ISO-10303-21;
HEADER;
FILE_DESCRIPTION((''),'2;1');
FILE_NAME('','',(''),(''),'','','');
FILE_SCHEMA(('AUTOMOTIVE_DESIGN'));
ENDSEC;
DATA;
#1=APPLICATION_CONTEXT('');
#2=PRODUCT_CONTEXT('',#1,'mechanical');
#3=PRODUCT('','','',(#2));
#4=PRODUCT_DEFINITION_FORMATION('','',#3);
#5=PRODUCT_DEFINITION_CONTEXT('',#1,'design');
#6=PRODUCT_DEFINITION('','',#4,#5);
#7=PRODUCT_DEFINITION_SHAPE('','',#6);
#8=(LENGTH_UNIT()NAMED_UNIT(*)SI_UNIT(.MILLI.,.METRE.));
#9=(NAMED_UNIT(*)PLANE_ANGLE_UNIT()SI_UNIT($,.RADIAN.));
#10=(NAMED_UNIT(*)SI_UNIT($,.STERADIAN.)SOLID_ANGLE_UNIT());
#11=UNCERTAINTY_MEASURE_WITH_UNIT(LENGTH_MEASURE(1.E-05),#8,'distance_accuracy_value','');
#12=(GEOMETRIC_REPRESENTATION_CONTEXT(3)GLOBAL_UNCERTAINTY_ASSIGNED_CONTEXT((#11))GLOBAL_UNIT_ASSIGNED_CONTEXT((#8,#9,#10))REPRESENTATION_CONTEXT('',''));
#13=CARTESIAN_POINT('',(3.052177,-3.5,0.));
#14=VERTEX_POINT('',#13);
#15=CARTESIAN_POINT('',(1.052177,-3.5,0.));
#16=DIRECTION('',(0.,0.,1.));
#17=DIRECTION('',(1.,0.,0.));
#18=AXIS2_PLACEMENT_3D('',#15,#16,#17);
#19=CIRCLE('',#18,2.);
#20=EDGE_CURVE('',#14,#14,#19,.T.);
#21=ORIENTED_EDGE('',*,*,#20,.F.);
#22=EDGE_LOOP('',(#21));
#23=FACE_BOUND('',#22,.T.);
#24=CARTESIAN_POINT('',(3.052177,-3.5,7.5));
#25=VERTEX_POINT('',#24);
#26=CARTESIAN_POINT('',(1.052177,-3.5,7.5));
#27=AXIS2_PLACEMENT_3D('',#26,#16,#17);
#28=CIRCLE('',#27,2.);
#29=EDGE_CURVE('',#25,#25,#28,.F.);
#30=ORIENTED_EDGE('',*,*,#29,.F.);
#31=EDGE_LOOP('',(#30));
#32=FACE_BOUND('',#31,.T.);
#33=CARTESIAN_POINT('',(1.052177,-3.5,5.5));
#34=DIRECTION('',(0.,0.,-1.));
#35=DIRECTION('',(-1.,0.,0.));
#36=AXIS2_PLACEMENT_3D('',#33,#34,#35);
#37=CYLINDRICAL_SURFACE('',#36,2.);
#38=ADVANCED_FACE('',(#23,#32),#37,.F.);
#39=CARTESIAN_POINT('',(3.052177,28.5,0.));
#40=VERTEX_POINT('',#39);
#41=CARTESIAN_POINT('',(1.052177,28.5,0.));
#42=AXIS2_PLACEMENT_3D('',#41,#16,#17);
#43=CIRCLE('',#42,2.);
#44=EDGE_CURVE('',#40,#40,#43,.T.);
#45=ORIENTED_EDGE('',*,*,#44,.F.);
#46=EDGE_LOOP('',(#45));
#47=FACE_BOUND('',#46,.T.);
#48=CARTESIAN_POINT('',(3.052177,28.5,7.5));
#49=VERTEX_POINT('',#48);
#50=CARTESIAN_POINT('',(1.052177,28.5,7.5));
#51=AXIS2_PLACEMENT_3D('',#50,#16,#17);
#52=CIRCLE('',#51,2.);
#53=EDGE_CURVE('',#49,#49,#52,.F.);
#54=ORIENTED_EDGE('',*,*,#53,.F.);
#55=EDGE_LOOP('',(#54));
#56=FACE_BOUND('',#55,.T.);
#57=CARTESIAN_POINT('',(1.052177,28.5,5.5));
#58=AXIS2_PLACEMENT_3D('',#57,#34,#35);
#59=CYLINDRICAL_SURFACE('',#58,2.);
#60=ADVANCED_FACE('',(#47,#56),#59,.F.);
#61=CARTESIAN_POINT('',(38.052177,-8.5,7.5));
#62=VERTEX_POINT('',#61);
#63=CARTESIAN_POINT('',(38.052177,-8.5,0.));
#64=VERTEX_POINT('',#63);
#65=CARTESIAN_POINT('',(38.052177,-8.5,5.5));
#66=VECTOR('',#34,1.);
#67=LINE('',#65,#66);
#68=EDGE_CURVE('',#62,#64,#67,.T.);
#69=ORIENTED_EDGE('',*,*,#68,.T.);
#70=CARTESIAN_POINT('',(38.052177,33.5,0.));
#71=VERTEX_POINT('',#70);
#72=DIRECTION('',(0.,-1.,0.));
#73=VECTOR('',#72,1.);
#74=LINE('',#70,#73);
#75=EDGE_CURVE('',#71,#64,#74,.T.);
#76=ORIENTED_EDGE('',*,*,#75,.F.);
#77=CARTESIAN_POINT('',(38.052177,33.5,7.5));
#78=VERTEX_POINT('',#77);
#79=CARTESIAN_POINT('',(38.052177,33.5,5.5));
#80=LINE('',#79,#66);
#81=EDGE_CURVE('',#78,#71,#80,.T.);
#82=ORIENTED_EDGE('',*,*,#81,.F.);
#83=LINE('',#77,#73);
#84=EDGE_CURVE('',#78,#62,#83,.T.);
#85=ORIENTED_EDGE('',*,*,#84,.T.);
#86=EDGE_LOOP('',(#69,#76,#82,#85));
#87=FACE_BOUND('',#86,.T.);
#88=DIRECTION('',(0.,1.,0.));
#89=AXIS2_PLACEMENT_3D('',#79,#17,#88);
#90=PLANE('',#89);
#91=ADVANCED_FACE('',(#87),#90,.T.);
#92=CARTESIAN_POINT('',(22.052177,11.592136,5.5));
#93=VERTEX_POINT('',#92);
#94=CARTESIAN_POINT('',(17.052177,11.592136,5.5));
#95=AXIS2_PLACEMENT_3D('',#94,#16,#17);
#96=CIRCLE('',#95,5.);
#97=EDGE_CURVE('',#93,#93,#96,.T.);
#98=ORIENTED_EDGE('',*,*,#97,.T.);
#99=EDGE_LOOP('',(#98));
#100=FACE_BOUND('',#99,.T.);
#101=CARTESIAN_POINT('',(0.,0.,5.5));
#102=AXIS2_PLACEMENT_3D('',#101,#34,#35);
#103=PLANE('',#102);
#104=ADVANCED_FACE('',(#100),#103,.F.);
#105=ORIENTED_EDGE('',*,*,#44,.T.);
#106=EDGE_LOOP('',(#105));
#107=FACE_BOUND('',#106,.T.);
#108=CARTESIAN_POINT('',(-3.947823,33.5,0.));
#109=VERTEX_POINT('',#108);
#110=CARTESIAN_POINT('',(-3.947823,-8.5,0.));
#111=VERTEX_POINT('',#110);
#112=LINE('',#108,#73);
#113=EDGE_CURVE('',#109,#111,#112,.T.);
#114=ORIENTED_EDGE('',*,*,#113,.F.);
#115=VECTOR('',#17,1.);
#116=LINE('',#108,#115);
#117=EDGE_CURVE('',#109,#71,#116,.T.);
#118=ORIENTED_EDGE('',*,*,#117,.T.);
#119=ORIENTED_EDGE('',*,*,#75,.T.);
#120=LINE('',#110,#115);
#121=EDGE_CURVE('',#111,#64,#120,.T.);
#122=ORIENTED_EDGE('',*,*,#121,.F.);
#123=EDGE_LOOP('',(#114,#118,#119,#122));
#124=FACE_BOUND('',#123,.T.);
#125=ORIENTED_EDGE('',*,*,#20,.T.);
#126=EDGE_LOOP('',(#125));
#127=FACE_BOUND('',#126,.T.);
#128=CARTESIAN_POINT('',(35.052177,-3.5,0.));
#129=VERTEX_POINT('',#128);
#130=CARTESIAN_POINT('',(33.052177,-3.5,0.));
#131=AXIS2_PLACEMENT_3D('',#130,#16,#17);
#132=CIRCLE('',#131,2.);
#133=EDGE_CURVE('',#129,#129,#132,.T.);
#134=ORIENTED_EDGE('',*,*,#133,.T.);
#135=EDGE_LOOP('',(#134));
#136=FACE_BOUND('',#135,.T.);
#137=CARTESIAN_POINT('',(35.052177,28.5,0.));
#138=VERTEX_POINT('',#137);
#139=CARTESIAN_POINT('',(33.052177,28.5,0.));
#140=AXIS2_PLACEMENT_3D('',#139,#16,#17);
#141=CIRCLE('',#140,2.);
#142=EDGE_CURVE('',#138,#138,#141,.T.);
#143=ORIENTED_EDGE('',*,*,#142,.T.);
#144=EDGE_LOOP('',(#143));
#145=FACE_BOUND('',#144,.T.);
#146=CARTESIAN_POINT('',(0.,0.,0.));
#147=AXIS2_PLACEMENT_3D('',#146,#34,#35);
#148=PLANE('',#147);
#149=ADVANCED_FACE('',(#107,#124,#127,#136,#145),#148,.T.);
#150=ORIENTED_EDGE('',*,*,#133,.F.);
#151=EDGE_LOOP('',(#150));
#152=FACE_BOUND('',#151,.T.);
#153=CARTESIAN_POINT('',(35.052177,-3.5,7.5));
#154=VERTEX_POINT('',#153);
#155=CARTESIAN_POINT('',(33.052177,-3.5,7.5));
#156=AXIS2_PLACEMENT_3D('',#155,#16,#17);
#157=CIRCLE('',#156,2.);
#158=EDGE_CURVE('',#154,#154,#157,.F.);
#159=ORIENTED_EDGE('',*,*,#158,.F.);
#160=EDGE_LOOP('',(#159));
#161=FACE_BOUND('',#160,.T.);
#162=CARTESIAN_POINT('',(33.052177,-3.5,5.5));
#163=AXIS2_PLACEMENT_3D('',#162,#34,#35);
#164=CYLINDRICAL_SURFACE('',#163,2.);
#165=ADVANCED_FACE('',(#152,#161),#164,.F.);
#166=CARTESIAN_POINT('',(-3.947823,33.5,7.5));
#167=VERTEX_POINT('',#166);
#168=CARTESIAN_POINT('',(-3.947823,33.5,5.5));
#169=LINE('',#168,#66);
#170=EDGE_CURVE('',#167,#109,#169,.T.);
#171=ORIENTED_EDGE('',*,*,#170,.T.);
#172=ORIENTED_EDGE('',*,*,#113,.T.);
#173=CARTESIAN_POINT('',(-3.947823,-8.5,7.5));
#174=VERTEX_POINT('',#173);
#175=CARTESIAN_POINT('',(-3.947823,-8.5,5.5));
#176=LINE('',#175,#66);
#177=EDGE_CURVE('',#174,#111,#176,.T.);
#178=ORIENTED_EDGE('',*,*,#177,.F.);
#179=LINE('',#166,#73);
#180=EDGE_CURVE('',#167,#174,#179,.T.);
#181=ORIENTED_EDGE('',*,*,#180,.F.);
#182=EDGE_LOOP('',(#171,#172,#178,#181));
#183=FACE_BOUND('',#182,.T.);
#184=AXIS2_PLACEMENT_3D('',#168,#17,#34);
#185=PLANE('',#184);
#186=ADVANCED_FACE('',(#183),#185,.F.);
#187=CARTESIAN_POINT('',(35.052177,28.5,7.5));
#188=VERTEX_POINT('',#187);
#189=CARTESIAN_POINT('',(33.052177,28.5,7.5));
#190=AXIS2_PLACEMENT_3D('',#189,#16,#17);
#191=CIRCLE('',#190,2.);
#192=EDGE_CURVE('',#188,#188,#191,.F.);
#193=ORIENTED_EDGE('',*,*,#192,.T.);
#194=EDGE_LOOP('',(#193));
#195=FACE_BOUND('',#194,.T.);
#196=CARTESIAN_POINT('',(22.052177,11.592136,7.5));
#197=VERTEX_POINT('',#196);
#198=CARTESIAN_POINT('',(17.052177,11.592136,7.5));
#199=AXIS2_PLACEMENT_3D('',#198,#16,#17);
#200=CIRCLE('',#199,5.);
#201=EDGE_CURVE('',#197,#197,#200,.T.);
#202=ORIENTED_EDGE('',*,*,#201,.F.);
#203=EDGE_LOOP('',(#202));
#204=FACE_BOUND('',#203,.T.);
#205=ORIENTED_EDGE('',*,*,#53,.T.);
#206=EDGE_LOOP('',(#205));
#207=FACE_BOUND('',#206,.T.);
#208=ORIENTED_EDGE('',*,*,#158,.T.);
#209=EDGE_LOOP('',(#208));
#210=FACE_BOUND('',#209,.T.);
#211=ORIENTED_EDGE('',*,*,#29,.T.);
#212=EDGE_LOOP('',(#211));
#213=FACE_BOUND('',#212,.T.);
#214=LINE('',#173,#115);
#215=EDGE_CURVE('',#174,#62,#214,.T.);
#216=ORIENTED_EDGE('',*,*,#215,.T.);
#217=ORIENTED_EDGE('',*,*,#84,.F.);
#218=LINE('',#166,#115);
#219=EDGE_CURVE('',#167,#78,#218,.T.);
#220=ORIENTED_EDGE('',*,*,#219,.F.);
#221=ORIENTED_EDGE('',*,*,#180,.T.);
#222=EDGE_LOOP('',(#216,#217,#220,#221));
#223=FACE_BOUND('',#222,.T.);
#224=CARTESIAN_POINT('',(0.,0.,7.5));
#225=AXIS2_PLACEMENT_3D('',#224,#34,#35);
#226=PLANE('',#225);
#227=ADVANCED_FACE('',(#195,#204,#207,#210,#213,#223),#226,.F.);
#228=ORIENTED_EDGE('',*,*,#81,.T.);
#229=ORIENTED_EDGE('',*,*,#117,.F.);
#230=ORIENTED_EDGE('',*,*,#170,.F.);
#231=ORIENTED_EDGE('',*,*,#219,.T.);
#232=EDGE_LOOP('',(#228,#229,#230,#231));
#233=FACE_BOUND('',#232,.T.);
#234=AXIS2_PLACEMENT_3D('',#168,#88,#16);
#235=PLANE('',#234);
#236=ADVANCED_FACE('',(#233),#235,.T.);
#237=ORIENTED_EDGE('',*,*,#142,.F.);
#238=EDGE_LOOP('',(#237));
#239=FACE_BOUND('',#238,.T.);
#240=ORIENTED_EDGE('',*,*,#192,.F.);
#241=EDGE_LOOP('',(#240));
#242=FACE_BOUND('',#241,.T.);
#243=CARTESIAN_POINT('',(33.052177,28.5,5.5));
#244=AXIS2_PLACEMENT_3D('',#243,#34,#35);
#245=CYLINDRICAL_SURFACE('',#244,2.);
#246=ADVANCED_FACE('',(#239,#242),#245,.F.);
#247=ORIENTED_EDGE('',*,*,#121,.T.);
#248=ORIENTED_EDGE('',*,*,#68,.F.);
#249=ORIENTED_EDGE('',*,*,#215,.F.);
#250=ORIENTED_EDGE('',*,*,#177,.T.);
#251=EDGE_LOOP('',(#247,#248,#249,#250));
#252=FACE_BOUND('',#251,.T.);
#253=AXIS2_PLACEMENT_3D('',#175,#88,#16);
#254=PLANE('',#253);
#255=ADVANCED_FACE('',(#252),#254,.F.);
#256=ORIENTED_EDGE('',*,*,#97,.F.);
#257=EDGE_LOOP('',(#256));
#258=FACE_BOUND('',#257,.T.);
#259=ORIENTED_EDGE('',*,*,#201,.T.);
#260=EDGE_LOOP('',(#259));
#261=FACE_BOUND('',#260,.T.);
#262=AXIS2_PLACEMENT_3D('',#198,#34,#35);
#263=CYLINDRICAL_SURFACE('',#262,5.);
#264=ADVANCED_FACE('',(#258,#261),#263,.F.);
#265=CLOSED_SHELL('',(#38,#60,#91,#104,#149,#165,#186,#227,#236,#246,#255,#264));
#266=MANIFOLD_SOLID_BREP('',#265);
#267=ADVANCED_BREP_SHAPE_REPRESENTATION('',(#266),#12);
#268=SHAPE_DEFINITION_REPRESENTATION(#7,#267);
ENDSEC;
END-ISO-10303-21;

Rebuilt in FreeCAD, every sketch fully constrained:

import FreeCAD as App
import Part
import Sketcher

V = App.Vector
Q = App.Units.Quantity

doc = App.newDocument("Part")
params = doc.addObject("Spreadsheet::Sheet", "Params")
for row, (alias, value) in enumerate([
    ("sketch1_diameter", "4 mm"),
    ("sketch1_width", "42 mm"),
    ("pad1_length", "5.5 mm"),
    ("sketch2_diameter", "4 mm"),
    ("sketch2_diameter2", "10 mm"),
    ("sketch2_width", "42 mm"),
    ("pad2_length", "2 mm"),
], start=1):
    params.set(f"A{row}", alias)
    params.set(f"B{row}", "=" + value)
    params.setAlias(f"B{row}", alias)

body = doc.addObject("PartDesign::Body", "Body")

sketch1 = body.newObject("Sketcher::SketchObject", "Sketch")
sketch1.AttachmentSupport = (doc.getObject("XY_Plane"), [""])
sketch1.MapMode = "FlatFace"
sketch1.addGeometry(Part.LineSegment(V(-3.9, 33.5, 0), V(-3.9, -8.5, 0)), False)
sketch1.addGeometry(Part.LineSegment(V(-3.9, -8.5, 0), V(38.1, -8.5, 0)), False)
sketch1.addGeometry(Part.LineSegment(V(38.1, -8.5, 0), V(38.1, 33.5, 0)), False)
sketch1.addGeometry(Part.LineSegment(V(38.1, 33.5, 0), V(-3.9, 33.5, 0)), False)
sketch1.addGeometry(Part.Circle(V(1.1, -3.5, 0), V(0, 0, 1), 2), False)
sketch1.addGeometry(Part.Circle(V(33.1, -3.5, 0), V(0, 0, 1), 2), False)
sketch1.addGeometry(Part.Circle(V(1.1, 28.5, 0), V(0, 0, 1), 2), False)
sketch1.addGeometry(Part.Circle(V(33.1, 28.5, 0), V(0, 0, 1), 2), False)
sketch1.addConstraint(Sketcher.Constraint("Coincident", 0, 2, 1, 1))
sketch1.addConstraint(Sketcher.Constraint("Coincident", 1, 2, 2, 1))
sketch1.addConstraint(Sketcher.Constraint("Coincident", 2, 2, 3, 1))
sketch1.addConstraint(Sketcher.Constraint("Coincident", 3, 2, 0, 1))
sketch1.addConstraint(Sketcher.Constraint("Vertical", 0))
sketch1.addConstraint(Sketcher.Constraint("Horizontal", 1))
sketch1.addConstraint(Sketcher.Constraint("Vertical", 2))
sketch1.addConstraint(Sketcher.Constraint("Horizontal", 3))
sketch1.addConstraint(Sketcher.Constraint("Equal", 4, 5))
sketch1.addConstraint(Sketcher.Constraint("Equal", 5, 6))
sketch1.addConstraint(Sketcher.Constraint("Equal", 6, 7))
sketch1.addConstraint(Sketcher.Constraint("Horizontal", 4, 3, 5, 3))
sketch1.addConstraint(Sketcher.Constraint("Horizontal", 6, 3, 7, 3))
sketch1.addConstraint(Sketcher.Constraint("Vertical", 4, 3, 6, 3))
sketch1.addConstraint(Sketcher.Constraint("Vertical", 5, 3, 7, 3))
sketch1.addConstraint(Sketcher.Constraint("Equal", 3, 0))
sketch1.addConstraint(Sketcher.Constraint("Diameter", 4, Q("4 mm")))
sketch1.addConstraint(Sketcher.Constraint("DistanceX", 1, 1, 1, 2, Q("42 mm")))
sketch1.addConstraint(Sketcher.Constraint("DistanceX", 4, 3, 5, 3, Q("32 mm")))
sketch1.addConstraint(Sketcher.Constraint("DistanceY", 4, 3, 6, 3, Q("32 mm")))
sketch1.addConstraint(Sketcher.Constraint("DistanceX", 0, 2, 4, 3, Q("5 mm")))
sketch1.addConstraint(Sketcher.Constraint("DistanceY", 0, 2, 4, 3, Q("5 mm")))
sketch1.addConstraint(Sketcher.Constraint("DistanceY", 4, 3, -1, 1, Q("3.5 mm")))
sketch1.addConstraint(Sketcher.Constraint("DistanceX", -1, 1, 4, 3, Q("1.052177 mm")))
sketch1.setExpression("Constraints[16]", "Params.sketch1_diameter")
sketch1.setExpression("Constraints[17]", "Params.sketch1_width")
pad1 = body.newObject("PartDesign::Pad", "Pad")
pad1.Profile = sketch1
pad1.setExpression("Length", "Params.pad1_length")

sketch2 = body.newObject("Sketcher::SketchObject", "Sketch001")
sketch2.AttachmentSupport = (doc.getObject("XY_Plane"), [""])
sketch2.MapMode = "FlatFace"
sketch2.AttachmentOffset = App.Placement(V(0, 0, 5.5), App.Rotation())
sketch2.addGeometry(Part.LineSegment(V(-3.9, 33.5, 0), V(-3.9, -8.5, 0)), False)
sketch2.addGeometry(Part.LineSegment(V(-3.9, -8.5, 0), V(38.1, -8.5, 0)), False)
sketch2.addGeometry(Part.LineSegment(V(38.1, -8.5, 0), V(38.1, 33.5, 0)), False)
sketch2.addGeometry(Part.LineSegment(V(38.1, 33.5, 0), V(-3.9, 33.5, 0)), False)
sketch2.addGeometry(Part.Circle(V(1.1, -3.5, 0), V(0, 0, 1), 2), False)
sketch2.addGeometry(Part.Circle(V(33.1, -3.5, 0), V(0, 0, 1), 2), False)
sketch2.addGeometry(Part.Circle(V(17.1, 11.6, 0), V(0, 0, 1), 5), False)
sketch2.addGeometry(Part.Circle(V(1.1, 28.5, 0), V(0, 0, 1), 2), False)
sketch2.addGeometry(Part.Circle(V(33.1, 28.5, 0), V(0, 0, 1), 2), False)
sketch2.addConstraint(Sketcher.Constraint("Coincident", 0, 2, 1, 1))
sketch2.addConstraint(Sketcher.Constraint("Coincident", 1, 2, 2, 1))
sketch2.addConstraint(Sketcher.Constraint("Coincident", 2, 2, 3, 1))
sketch2.addConstraint(Sketcher.Constraint("Coincident", 3, 2, 0, 1))
sketch2.addConstraint(Sketcher.Constraint("Vertical", 0))
sketch2.addConstraint(Sketcher.Constraint("Horizontal", 1))
sketch2.addConstraint(Sketcher.Constraint("Vertical", 2))
sketch2.addConstraint(Sketcher.Constraint("Horizontal", 3))
sketch2.addConstraint(Sketcher.Constraint("Equal", 4, 5))
sketch2.addConstraint(Sketcher.Constraint("Equal", 5, 7))
sketch2.addConstraint(Sketcher.Constraint("Equal", 7, 8))
sketch2.addConstraint(Sketcher.Constraint("Horizontal", 4, 3, 5, 3))
sketch2.addConstraint(Sketcher.Constraint("Horizontal", 7, 3, 8, 3))
sketch2.addConstraint(Sketcher.Constraint("Vertical", 4, 3, 7, 3))
sketch2.addConstraint(Sketcher.Constraint("Vertical", 5, 3, 8, 3))
sketch2.addConstraint(Sketcher.Constraint("Equal", 3, 0))
sketch2.addConstraint(Sketcher.Constraint("Diameter", 4, Q("4 mm")))
sketch2.addConstraint(Sketcher.Constraint("Diameter", 6, Q("10 mm")))
sketch2.addConstraint(Sketcher.Constraint("DistanceX", 1, 1, 1, 2, Q("42 mm")))
sketch2.addConstraint(Sketcher.Constraint("DistanceX", 4, 3, 5, 3, Q("32 mm")))
sketch2.addConstraint(Sketcher.Constraint("DistanceX", 4, 3, 6, 3, Q("16 mm")))
sketch2.addConstraint(Sketcher.Constraint("DistanceY", 4, 3, 7, 3, Q("32 mm")))
sketch2.addConstraint(Sketcher.Constraint("DistanceX", 0, 2, 4, 3, Q("5 mm")))
sketch2.addConstraint(Sketcher.Constraint("DistanceY", 0, 2, 4, 3, Q("5 mm")))
sketch2.addConstraint(Sketcher.Constraint("DistanceY", 4, 3, -1, 1, Q("3.5 mm")))
sketch2.addConstraint(Sketcher.Constraint("DistanceX", -1, 1, 4, 3, Q("1.052177 mm")))
sketch2.addConstraint(Sketcher.Constraint("DistanceY", -1, 1, 6, 3, Q("11.592136 mm")))
sketch2.setExpression("Constraints[16]", "Params.sketch2_diameter")
sketch2.setExpression("Constraints[17]", "Params.sketch2_diameter2")
sketch2.setExpression("Constraints[18]", "Params.sketch2_width")
pad2 = body.newObject("PartDesign::Pad", "Pad001")
pad2.Profile = sketch2
pad2.setExpression("Length", "Params.pad2_length")

doc.recompute()
